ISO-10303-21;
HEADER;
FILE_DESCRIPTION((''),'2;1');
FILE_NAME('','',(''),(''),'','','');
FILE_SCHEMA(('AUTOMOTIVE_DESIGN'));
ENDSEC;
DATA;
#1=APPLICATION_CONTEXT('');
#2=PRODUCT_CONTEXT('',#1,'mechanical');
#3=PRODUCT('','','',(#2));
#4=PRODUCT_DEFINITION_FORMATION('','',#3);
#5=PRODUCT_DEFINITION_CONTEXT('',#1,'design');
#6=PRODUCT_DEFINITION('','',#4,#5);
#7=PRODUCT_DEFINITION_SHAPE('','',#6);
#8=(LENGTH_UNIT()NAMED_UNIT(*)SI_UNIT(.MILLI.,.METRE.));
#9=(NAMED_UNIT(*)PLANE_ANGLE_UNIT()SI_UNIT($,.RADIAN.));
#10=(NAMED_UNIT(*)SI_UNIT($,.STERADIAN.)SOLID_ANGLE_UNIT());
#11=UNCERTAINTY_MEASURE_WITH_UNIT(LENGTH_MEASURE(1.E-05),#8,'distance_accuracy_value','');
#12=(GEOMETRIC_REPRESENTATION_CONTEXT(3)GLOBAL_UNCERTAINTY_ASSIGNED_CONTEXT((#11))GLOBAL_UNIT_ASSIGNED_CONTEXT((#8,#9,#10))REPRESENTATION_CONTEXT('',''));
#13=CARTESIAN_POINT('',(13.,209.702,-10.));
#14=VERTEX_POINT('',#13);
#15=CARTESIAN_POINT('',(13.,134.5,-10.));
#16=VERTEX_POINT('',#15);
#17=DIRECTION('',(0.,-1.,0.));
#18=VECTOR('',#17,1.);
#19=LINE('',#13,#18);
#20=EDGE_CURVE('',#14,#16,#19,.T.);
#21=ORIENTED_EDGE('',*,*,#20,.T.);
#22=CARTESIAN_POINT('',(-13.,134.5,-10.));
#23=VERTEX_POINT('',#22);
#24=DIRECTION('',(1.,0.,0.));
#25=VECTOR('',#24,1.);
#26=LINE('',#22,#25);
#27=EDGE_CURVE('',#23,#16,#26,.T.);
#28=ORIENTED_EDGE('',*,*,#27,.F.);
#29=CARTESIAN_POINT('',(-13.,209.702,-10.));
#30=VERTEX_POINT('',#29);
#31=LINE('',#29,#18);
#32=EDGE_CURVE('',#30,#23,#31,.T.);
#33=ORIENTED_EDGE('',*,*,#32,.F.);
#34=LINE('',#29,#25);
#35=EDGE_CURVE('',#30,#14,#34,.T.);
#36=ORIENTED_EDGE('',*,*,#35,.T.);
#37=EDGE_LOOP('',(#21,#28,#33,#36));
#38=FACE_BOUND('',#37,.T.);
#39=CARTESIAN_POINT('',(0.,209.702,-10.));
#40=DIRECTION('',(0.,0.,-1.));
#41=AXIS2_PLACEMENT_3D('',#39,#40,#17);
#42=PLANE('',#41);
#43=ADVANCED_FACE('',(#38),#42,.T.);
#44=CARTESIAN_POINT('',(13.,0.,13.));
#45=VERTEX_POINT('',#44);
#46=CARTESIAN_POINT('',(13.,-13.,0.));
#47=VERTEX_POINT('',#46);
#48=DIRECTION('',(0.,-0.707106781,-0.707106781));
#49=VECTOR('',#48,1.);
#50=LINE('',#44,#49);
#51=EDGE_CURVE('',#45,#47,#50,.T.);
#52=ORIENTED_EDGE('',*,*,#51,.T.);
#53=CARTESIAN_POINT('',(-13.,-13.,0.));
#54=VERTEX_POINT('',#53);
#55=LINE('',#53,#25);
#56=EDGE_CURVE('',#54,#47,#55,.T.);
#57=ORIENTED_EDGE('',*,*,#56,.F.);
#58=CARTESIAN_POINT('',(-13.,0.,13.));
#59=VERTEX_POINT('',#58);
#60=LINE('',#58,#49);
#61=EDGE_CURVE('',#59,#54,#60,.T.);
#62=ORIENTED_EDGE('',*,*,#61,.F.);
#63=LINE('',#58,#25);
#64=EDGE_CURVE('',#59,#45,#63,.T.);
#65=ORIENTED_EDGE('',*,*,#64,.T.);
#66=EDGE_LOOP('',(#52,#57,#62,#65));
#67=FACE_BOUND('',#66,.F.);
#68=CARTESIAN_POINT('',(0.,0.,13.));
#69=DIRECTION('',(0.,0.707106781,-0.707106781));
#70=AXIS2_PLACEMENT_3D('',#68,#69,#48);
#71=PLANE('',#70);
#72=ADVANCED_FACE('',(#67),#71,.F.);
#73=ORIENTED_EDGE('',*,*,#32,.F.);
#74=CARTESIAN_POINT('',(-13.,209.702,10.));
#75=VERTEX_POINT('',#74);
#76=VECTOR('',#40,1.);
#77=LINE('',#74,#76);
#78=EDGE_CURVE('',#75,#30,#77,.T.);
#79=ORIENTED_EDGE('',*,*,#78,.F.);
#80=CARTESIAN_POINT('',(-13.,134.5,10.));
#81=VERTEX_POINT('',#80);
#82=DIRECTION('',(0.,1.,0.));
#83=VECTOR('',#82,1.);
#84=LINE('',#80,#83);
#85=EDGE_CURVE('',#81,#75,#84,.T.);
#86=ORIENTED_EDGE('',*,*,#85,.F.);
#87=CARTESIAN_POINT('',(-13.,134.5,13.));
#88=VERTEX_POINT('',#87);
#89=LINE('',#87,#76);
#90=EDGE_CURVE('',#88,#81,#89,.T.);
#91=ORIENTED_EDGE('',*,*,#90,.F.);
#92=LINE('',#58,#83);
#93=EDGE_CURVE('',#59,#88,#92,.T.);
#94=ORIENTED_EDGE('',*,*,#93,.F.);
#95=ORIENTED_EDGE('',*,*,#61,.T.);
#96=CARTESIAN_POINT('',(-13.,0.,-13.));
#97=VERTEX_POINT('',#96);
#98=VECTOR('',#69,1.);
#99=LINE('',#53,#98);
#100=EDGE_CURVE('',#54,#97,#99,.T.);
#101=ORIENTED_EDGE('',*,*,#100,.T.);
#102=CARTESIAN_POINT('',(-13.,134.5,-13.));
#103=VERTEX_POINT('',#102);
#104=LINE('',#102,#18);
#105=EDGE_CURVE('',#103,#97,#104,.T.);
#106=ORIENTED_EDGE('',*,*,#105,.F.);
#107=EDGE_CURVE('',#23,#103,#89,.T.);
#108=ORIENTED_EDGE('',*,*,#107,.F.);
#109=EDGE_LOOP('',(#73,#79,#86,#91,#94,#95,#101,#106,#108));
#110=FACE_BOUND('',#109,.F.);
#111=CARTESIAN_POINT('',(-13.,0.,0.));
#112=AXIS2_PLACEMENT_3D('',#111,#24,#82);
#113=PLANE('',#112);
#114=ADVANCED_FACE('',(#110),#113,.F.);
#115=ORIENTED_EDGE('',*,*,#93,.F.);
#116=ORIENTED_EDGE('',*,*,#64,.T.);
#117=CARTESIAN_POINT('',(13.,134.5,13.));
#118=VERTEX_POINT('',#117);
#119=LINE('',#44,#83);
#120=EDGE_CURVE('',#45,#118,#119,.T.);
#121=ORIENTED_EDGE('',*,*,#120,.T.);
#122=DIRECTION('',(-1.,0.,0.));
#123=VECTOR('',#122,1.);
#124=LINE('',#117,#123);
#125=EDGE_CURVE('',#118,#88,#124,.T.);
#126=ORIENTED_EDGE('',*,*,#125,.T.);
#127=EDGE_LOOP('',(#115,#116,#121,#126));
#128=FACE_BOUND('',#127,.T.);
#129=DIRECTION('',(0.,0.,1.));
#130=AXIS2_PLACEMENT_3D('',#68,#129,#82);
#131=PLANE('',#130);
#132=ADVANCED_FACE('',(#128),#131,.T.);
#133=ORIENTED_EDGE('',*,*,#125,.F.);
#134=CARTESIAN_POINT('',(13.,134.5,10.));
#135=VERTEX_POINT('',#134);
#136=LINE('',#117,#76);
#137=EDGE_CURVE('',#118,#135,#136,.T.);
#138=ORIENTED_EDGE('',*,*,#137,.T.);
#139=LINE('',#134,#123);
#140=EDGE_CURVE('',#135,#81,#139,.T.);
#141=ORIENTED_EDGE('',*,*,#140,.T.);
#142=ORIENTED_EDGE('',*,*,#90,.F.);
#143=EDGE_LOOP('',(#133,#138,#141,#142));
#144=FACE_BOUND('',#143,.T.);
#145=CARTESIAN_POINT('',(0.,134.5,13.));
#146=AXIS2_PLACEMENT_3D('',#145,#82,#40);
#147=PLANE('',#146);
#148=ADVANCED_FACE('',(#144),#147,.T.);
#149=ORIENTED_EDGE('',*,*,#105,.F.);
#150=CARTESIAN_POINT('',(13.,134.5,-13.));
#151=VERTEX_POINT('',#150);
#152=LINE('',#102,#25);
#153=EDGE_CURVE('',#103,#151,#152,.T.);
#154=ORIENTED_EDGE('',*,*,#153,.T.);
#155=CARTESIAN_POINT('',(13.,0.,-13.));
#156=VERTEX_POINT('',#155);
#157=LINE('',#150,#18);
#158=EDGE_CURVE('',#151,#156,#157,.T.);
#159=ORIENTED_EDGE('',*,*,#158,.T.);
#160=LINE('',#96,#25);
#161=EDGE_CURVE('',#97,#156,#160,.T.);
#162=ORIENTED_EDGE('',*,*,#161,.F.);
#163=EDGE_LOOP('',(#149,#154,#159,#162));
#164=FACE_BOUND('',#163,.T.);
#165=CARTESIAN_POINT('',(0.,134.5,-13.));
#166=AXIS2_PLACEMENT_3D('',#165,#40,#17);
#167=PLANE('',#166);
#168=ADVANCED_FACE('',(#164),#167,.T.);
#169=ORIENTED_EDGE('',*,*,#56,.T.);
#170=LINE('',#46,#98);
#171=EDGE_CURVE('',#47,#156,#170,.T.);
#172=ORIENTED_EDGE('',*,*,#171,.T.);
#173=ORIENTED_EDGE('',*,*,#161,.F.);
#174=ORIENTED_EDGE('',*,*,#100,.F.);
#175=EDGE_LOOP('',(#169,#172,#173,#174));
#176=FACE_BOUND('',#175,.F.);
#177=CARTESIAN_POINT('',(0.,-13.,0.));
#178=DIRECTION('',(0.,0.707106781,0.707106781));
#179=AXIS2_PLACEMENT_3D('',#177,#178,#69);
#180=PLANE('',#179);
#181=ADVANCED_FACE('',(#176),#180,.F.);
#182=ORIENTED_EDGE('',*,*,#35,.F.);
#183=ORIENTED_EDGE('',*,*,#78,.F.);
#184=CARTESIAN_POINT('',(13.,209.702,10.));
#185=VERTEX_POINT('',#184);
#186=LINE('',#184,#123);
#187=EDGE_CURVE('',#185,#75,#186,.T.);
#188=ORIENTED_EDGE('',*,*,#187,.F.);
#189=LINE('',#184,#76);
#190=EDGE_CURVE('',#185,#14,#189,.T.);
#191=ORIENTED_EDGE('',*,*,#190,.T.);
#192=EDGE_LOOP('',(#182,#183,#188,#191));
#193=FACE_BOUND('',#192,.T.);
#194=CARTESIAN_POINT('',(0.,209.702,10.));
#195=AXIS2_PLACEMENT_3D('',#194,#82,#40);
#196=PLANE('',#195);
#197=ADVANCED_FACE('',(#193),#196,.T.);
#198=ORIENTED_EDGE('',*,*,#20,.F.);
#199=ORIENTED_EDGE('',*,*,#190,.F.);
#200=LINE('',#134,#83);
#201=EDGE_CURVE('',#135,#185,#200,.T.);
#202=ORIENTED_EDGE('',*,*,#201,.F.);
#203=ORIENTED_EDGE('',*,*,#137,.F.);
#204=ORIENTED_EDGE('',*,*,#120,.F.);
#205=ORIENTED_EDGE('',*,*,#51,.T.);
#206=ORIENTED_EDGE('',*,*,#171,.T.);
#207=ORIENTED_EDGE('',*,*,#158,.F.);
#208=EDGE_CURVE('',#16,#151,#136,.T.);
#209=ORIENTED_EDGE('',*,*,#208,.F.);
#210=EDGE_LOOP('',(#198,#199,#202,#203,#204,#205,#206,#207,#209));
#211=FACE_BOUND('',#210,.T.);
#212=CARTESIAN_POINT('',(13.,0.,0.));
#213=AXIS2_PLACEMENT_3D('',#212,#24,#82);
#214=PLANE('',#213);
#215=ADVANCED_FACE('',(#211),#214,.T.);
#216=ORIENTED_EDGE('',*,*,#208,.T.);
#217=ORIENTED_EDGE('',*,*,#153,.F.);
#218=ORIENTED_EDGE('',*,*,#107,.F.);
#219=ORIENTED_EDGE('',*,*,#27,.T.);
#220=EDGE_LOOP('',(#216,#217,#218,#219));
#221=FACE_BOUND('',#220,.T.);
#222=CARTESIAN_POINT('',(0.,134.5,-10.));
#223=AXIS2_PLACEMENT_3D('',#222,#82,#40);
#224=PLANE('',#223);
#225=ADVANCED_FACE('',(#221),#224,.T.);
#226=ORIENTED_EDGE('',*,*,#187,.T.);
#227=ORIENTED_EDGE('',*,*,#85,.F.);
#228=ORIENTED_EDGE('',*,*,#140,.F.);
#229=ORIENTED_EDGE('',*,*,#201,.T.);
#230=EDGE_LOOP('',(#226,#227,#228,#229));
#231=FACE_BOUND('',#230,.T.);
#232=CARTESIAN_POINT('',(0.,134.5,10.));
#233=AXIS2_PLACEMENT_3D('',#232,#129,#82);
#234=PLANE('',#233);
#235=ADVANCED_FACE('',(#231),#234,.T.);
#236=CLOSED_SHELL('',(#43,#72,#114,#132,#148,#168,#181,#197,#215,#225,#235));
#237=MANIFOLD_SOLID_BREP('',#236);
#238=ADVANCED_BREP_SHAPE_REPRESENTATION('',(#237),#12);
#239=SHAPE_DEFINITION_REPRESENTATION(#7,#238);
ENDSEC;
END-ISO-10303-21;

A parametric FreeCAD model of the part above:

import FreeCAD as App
import Part
import Sketcher
from FreeCAD import Vector


def add_polygon(sketch, points):
    """Adds a closed chain of lines whose ends are joined by coincident constraints."""
    first, n = sketch.GeometryCount, len(points)
    for a, b in zip(points, points[1:] + points[:1]):
        sketch.addGeometry(Part.LineSegment(App.Vector(*a, 0), App.Vector(*b, 0)), False)
    for i in range(n):
        sketch.addConstraint(Sketcher.Constraint("Coincident", first + i, 2, first + (i + 1) % n, 1))

doc = App.newDocument("Part")
body = doc.addObject("PartDesign::Body", "Body")

sketch1 = body.newObject("Sketcher::SketchObject", "Sketch")
sketch1.AttachmentSupport = (doc.getObject("YZ_Plane"), [""])
sketch1.MapMode = "FlatFace"
add_polygon(sketch1, [(134.5, 13), (0, 13), (-13, 0), (0, -13), (134.5, -13), (134.5, -10), (209.7, -10), (209.7, 10), (134.5, 10)])
sketch1.addConstraint([
    Sketcher.Constraint("Horizontal", 0),
    Sketcher.Constraint("Horizontal", 3),
    Sketcher.Constraint("Vertical", 4),
    Sketcher.Constraint("Horizontal", 5),
    Sketcher.Constraint("Vertical", 6),
    Sketcher.Constraint("Horizontal", 7),
    Sketcher.Constraint("Vertical", 8),
    Sketcher.Constraint("Symmetric", 0, 2, 2, 2, -1, 1),
    Sketcher.Constraint("Symmetric", 4, 2, 7, 2, -1),
    Sketcher.Constraint("PointOnObject", 0, 2, -2),
    Sketcher.Constraint("PointOnObject", 1, 2, -1),
    Sketcher.Constraint("Perpendicular", 1, 2),
    Sketcher.Constraint("DistanceY", 4, 1, 4, 2, 3.0),
    Sketcher.Constraint("DistanceY", 6, 1, 6, 2, 20.0),
    Sketcher.Constraint("DistanceX", 0, 2, 0, 1, 134.5),
    Sketcher.Constraint("DistanceX", 5, 1, 5, 2, 75.202),
])
pad1 = body.newObject("PartDesign::Pad", "Pad")
pad1.Profile = sketch1
pad1.Length = 26
pad1.Midplane = True

doc.recompute()
